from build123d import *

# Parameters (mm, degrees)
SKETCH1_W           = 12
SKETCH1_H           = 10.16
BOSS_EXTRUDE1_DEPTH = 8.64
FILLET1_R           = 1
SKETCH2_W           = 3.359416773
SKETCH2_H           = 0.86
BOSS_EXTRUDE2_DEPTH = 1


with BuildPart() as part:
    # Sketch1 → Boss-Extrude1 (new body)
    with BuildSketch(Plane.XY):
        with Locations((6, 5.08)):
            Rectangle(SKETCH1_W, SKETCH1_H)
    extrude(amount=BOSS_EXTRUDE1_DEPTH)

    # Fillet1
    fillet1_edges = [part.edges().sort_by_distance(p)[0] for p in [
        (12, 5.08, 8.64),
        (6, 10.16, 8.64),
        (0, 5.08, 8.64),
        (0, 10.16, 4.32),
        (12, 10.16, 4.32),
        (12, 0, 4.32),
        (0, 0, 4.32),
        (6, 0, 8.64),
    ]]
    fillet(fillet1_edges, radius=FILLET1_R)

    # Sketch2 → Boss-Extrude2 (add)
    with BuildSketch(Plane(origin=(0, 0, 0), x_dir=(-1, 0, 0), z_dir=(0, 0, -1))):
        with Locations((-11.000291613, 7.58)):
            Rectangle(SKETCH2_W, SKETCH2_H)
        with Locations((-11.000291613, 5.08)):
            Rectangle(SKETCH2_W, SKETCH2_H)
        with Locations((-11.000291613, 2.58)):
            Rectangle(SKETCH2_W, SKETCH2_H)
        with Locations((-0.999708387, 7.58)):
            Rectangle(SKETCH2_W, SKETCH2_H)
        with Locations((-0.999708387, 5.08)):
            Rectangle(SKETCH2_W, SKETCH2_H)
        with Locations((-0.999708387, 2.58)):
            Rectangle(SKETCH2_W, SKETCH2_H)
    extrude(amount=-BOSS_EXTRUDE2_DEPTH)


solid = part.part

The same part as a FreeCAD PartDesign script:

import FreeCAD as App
import Part
import Sketcher
Q = App.Units.Quantity


def edges_at(feature, points):
    """Names of the edges that pass closest to the given points."""
    edges = feature.Shape.Edges
    near = lambda p: min(range(len(edges)), key=lambda i: edges[i].distToShape(Part.Vertex(*p))[0])
    return sorted({f"Edge{near(p) + 1}" for p in points})


def add_polygon(sketch, points):
    """Adds a closed chain of lines whose ends are joined by coincident constraints."""
    first, n = sketch.GeometryCount, len(points)
    for a, b in zip(points, points[1:] + points[:1]):
        sketch.addGeometry(Part.LineSegment(App.Vector(*a, 0), App.Vector(*b, 0)), False)
    for i in range(n):
        sketch.addConstraint(Sketcher.Constraint("Coincident", first + i, 2, first + (i + 1) % n, 1))

doc = App.newDocument("Part")
body = doc.addObject("PartDesign::Body", "Body")

# Sketch on XY plane
sketch1 = doc.addObject("Sketcher::SketchObject", "Sketch")
body.addObject(sketch1)
sketch1.AttachmentSupport = (doc.XY_Plane, [""])
sketch1.MapMode = "FlatFace"
add_polygon(sketch1, [(0, 10), (0, 0), (12, 0), (12, 10)])  # lines 0-3
sketch1.addConstraint([
    Sketcher.Constraint("Vertical", 0),
    Sketcher.Constraint("Horizontal", 1),
    Sketcher.Constraint("Vertical", 2),
    Sketcher.Constraint("Horizontal", 3),
    Sketcher.Constraint("Coincident", 0, 2, -1, 1),
    Sketcher.Constraint("DistanceX", 1, 1, 1, 2, Q("12 mm")),
    Sketcher.Constraint("DistanceY", 0, 2, 0, 1, Q("10.16 mm")),
])
pad1 = doc.addObject("PartDesign::Pad", "Pad")
body.addObject(pad1)
pad1.Profile = sketch1
pad1.Length = 8.64
doc.recompute()

fillet = doc.addObject("PartDesign::Fillet", "Fillet")
body.addObject(fillet)
fillet.Base = (pad1, edges_at(pad1, [
    (12, 5.08, 8.64),
    (6, 10.16, 8.64),
    (0, 5.08, 8.64),
    (0, 10.16, 4.32),
    (12, 10.16, 4.32),
    (12, 0, 4.32),
    (0, 0, 4.32),
    (6, 0, 8.64),
]))
fillet.Radius = 1

# Sketch on XY plane
sketch2 = doc.addObject("Sketcher::SketchObject", "Sketch001")
body.addObject(sketch2)
sketch2.AttachmentSupport = (doc.XY_Plane, [""])
sketch2.MapMode = "FlatFace"
add_polygon(sketch2, [(12.7, 8), (12.7, 7.2), (9.3, 7.2), (9.3, 8)])  # lines 0-3
add_polygon(sketch2, [(12.7, 5.5), (12.7, 4.7), (9.3, 4.7), (9.3, 5.5)])  # lines 4-7
add_polygon(sketch2, [(12.7, 3), (12.7, 2.1), (9.3, 2.1), (9.3, 3)])  # lines 8-11
add_polygon(sketch2, [(2.7, 8), (2.7, 7.2), (-0.7, 7.2), (-0.7, 8)])  # lines 12-15
add_polygon(sketch2, [(2.7, 5.5), (2.7, 4.7), (-0.7, 4.7), (-0.7, 5.5)])  # lines 16-19
add_polygon(sketch2, [(2.7, 3), (2.7, 2.1), (-0.7, 2.1), (-0.7, 3)])  # lines 20-23
sketch2.addConstraint([
    Sketcher.Constraint("Vertical", 0),
    Sketcher.Constraint("Horizontal", 1),
    Sketcher.Constraint("Vertical", 2),
    Sketcher.Constraint("Horizontal", 3),
    Sketcher.Constraint("Vertical", 4),
    Sketcher.Constraint("Horizontal", 5),
    Sketcher.Constraint("Vertical", 6),
    Sketcher.Constraint("Horizontal", 7),
    Sketcher.Constraint("Vertical", 8),
    Sketcher.Constraint("Horizontal", 9),
    Sketcher.Constraint("Vertical", 10),
    Sketcher.Constraint("Horizontal", 11),
    Sketcher.Constraint("Vertical", 12),
    Sketcher.Constraint("Horizontal", 13),
    Sketcher.Constraint("Vertical", 14),
    Sketcher.Constraint("Horizontal", 15),
    Sketcher.Constraint("Vertical", 16),
    Sketcher.Constraint("Horizontal", 17),
    Sketcher.Constraint("Vertical", 18),
    Sketcher.Constraint("Horizontal", 19),
    Sketcher.Constraint("Vertical", 20),
    Sketcher.Constraint("Horizontal", 21),
    Sketcher.Constraint("Vertical", 22),
    Sketcher.Constraint("Horizontal", 23),
    Sketcher.Constraint("Horizontal", 1, 2, 12, 2),
    Sketcher.Constraint("Horizontal", 3, 2, 14, 2),
    Sketcher.Constraint("Horizontal", 5, 2, 16, 2),
    Sketcher.Constraint("Horizontal", 7, 2, 18, 2),
    Sketcher.Constraint("Horizontal", 9, 2, 20, 2),
    Sketcher.Constraint("Horizontal", 11, 2, 22, 2),
    Sketcher.Constraint("Vertical", 3, 2, 4, 2),
    Sketcher.Constraint("Vertical", 2, 2, 5, 2),
    Sketcher.Constraint("Vertical", 7, 2, 8, 2),
    Sketcher.Constraint("Vertical", 6, 2, 9, 2),
    Sketcher.Constraint("Vertical", 15, 2, 16, 2),
    Sketcher.Constraint("Vertical", 14, 2, 17, 2),
    Sketcher.Constraint("Vertical", 19, 2, 20, 2),
    Sketcher.Constraint("Vertical", 18, 2, 21, 2),
    Sketcher.Constraint("Equal", 11, 13),
    Sketcher.Constraint("Equal", 2, 4),
    Sketcher.Constraint("Equal", 6, 8),
    Sketcher.Constraint("DistanceY", 8, 2, 0, 2, Q("5 mm")),
    Sketcher.Constraint("DistanceY", 0, 2, 0, 1, Q("0.86 mm")),
    Sketcher.Constraint("DistanceY", 4, 2, 0, 2, Q("2.5 mm")),
    Sketcher.Constraint("DistanceX", -1, 1, 0, 2, Q("12.68 mm")),
    Sketcher.Constraint("DistanceY", -1, 1, 0, 2, Q("7.15 mm")),
    Sketcher.Constraint("DistanceX", 13, 2, -1, 1, Q("0.68 mm")),
    Sketcher.Constraint("DistanceX", 1, 2, 1, 1, Q("3.359417 mm")),
])
pad2 = doc.addObject("PartDesign::Pad", "Pad001")
body.addObject(pad2)
pad2.Profile = sketch2
pad2.Length = 1

doc.recompute()
